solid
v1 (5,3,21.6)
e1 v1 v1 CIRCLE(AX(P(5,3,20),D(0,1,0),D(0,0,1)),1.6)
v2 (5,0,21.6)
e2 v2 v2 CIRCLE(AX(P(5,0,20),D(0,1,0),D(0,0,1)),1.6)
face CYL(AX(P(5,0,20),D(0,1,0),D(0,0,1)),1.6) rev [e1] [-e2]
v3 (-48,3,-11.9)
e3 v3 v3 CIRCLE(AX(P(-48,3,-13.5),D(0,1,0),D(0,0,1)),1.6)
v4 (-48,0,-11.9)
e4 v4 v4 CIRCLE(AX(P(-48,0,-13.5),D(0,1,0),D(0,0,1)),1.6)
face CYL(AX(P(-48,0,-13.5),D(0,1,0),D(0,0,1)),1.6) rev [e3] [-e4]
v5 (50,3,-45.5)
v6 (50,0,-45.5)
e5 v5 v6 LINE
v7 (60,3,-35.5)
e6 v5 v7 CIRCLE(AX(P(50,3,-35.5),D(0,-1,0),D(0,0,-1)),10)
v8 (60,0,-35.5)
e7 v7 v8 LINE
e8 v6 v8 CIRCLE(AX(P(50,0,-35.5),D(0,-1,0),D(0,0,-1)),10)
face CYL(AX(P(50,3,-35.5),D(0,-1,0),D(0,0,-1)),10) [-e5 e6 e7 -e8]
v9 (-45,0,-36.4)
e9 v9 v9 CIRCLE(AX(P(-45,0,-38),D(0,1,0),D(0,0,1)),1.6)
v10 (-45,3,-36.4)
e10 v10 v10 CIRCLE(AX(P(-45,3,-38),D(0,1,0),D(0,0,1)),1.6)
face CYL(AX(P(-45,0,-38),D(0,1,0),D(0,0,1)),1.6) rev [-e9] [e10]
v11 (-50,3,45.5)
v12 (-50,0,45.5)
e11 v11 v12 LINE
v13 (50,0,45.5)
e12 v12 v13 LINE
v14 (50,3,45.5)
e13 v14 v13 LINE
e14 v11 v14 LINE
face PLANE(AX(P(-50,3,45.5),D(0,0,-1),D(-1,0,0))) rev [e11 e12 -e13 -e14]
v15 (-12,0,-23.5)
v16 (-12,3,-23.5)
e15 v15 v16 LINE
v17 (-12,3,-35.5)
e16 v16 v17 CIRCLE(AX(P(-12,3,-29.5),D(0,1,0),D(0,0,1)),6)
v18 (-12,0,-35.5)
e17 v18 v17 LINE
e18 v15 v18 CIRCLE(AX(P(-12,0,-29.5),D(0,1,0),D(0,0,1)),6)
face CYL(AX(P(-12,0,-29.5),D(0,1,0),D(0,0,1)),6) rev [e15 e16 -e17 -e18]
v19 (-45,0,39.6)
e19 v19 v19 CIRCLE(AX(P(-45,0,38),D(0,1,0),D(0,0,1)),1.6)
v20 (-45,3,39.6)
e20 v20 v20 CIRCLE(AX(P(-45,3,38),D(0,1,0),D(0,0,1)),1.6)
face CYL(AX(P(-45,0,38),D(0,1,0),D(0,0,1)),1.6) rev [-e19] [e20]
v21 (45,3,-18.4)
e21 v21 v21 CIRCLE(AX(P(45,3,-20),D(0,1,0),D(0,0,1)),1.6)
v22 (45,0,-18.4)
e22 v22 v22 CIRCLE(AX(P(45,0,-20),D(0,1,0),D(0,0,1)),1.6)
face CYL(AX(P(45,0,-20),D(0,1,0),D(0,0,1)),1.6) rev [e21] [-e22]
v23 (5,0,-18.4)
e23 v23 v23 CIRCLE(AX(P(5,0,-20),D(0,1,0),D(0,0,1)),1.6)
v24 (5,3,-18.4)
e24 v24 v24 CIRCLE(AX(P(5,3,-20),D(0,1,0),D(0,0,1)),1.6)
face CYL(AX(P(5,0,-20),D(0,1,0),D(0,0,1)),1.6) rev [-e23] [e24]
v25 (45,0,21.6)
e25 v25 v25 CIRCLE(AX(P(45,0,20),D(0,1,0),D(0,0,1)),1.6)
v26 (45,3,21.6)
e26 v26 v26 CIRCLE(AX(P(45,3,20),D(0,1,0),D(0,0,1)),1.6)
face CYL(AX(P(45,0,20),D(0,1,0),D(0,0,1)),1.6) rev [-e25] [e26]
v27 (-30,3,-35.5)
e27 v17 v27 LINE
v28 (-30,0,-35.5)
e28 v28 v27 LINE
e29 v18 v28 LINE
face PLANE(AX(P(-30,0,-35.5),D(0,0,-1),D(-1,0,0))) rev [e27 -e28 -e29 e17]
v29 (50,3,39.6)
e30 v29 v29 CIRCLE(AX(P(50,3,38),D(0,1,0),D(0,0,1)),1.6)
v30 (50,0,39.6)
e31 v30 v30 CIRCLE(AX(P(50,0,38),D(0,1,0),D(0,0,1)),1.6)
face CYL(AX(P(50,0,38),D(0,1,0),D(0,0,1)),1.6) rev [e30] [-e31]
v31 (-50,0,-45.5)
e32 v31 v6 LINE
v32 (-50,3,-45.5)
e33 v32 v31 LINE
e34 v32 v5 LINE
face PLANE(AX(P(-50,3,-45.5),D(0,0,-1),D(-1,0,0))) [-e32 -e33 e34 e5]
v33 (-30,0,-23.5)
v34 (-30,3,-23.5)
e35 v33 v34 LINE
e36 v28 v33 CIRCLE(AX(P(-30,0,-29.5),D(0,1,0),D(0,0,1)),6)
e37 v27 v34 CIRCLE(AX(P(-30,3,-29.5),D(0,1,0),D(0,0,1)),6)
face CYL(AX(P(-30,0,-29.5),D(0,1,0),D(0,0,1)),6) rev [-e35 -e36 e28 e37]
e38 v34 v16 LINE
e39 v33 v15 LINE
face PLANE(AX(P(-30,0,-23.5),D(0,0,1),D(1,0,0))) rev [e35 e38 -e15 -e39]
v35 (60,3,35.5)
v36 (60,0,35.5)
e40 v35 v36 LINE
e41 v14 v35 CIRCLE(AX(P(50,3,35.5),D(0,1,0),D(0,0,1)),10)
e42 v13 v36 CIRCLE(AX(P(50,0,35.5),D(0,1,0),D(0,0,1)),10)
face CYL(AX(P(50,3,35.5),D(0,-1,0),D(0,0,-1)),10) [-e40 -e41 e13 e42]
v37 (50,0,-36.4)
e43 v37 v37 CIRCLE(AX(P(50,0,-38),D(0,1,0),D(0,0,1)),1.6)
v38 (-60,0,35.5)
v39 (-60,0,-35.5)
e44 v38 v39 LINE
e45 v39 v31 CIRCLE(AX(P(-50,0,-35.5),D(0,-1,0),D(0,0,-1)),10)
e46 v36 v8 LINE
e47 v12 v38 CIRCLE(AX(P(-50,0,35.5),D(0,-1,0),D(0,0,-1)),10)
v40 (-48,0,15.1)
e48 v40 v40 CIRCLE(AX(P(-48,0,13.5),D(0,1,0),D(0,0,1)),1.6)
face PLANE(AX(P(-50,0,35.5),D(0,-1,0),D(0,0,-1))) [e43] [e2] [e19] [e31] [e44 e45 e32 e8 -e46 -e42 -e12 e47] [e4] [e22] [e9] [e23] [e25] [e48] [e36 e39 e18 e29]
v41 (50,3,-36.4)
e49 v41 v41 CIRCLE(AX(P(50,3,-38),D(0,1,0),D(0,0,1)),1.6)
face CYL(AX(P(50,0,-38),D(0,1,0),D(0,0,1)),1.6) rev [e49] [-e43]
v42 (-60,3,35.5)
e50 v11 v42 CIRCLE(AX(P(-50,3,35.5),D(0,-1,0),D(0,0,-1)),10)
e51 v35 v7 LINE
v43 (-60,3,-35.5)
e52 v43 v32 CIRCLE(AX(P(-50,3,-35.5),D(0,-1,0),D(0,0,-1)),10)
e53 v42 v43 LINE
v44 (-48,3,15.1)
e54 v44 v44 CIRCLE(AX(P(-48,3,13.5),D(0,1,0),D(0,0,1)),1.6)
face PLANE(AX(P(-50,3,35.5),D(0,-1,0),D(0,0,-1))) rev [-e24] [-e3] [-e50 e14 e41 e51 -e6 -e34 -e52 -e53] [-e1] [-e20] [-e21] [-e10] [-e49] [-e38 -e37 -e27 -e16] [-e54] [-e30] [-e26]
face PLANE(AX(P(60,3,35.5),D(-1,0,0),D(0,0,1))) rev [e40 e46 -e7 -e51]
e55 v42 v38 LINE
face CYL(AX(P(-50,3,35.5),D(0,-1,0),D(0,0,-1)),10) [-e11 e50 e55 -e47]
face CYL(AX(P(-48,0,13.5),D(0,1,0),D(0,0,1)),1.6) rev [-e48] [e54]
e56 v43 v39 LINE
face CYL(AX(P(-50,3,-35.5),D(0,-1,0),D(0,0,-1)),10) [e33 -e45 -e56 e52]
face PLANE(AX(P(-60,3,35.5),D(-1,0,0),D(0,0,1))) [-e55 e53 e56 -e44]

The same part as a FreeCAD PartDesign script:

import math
import FreeCAD as App
import Part
import Sketcher
from FreeCAD import Vector

doc = App.newDocument("Part")
params = doc.addObject("Spreadsheet::Sheet", "Params")
for row, (alias, value) in enumerate([
    ("sketch1_radius", "10 mm"),
    ("sketch1_width", "100 mm"),
    ("sketch1_height", "71 mm"),
    ("pad1_length", "3 mm"),
    ("sketch2_diameter", "3.2 mm"),
    ("pocket1_length", "3 mm"),
    ("sketch3_diameter", "3.2 mm"),
    ("pocket2_length", "3 mm"),
    ("sketch4_radius", "6 mm"),
    ("sketch4_width", "18 mm"),
    ("pocket3_length", "3 mm"),
    ("sketch5_diameter", "3.2 mm"),
    ("pocket4_length", "3 mm"),
], start=1):
    params.set(f"A{row}", alias)
    params.set(f"B{row}", "=" + value)
    params.setAlias(f"B{row}", alias)

body = doc.addObject("PartDesign::Body", "Body")

# Sketch on XZ plane
sketch1 = doc.addObject("Sketcher::SketchObject", "Sketch")
body.addObject(sketch1)
sketch1.AttachmentSupport = (doc.XZ_Plane, [""])
sketch1.MapMode = "FlatFace"
sketch1.addGeometry(Part.LineSegment(Vector(-50, 46, 0), Vector(50, 46, 0)), False)
sketch1.addGeometry(Part.ArcOfCircle(Part.Circle(Vector(50, 36, 0), Vector(0, 0, 1), 10), math.radians(0), math.radians(90)), False)
sketch1.addGeometry(Part.LineSegment(Vector(60, 36, 0), Vector(60, -36, 0)), False)
sketch1.addGeometry(Part.ArcOfCircle(Part.Circle(Vector(50, -36, 0), Vector(0, 0, 1), 10), math.radians(-90), math.radians(0)), False)
sketch1.addGeometry(Part.LineSegment(Vector(50, -46, 0), Vector(-50, -46, 0)), False)
sketch1.addGeometry(Part.ArcOfCircle(Part.Circle(Vector(-50, -36, 0), Vector(0, 0, 1), 10), math.radians(180), math.radians(270)), False)
sketch1.addGeometry(Part.LineSegment(Vector(-60, -36, 0), Vector(-60, 36, 0)), False)
sketch1.addGeometry(Part.ArcOfCircle(Part.Circle(Vector(-50, 36, 0), Vector(0, 0, 1), 10), math.radians(90), math.radians(180)), False)
sketch1.addConstraint(Sketcher.Constraint("Tangent", 0, 2, 1, 2))
sketch1.addConstraint(Sketcher.Constraint("Tangent", 1, 1, 2, 1))
sketch1.addConstraint(Sketcher.Constraint("Tangent", 2, 2, 3, 2))
sketch1.addConstraint(Sketcher.Constraint("Tangent", 3, 1, 4, 1))
sketch1.addConstraint(Sketcher.Constraint("Tangent", 4, 2, 5, 2))
sketch1.addConstraint(Sketcher.Constraint("Tangent", 5, 1, 6, 1))
sketch1.addConstraint(Sketcher.Constraint("Tangent", 6, 2, 7, 2))
sketch1.addConstraint(Sketcher.Constraint("Tangent", 7, 1, 0, 1))
sketch1.addConstraint(Sketcher.Constraint("Horizontal", 0))
sketch1.addConstraint(Sketcher.Constraint("Vertical", 2))
sketch1.addConstraint(Sketcher.Constraint("Horizontal", 4))
sketch1.addConstraint(Sketcher.Constraint("Vertical", 6))
sketch1.addConstraint(Sketcher.Constraint("Equal", 1, 3))
sketch1.addConstraint(Sketcher.Constraint("Equal", 3, 5))
sketch1.addConstraint(Sketcher.Constraint("Equal", 5, 7))
sketch1.addConstraint(Sketcher.Constraint("Symmetric", 1, 3, 5, 3, -1, 1))
sketch1.addConstraint(Sketcher.Constraint("Radius", 1, 10.0))
sketch1.addConstraint(Sketcher.Constraint("DistanceX", 0, 1, 0, 2, 100.0))
sketch1.addConstraint(Sketcher.Constraint("DistanceY", 2, 2, 2, 1, 71.0))
sketch1.setExpression("Constraints[16]", "Params.sketch1_radius")
sketch1.setExpression("Constraints[17]", "Params.sketch1_width")
sketch1.setExpression("Constraints[18]", "Params.sketch1_height")
pad1 = doc.addObject("PartDesign::Pad", "Pad")
body.addObject(pad1)
pad1.Profile = sketch1
pad1.setExpression("Length", "Params.pad1_length")
pad1.Reversed = True

# Sketch on XZ plane
sketch2 = doc.addObject("Sketcher::SketchObject", "Sketch001")
body.addObject(sketch2)
sketch2.AttachmentSupport = (doc.XZ_Plane, [""])
sketch2.MapMode = "FlatFace"
sketch2.AttachmentOffset = App.Placement(Vector(0, 0, -3), App.Rotation())
sketch2.addGeometry(Part.Circle(Vector(50, 38, 0), Vector(0, 0, 1), 1.6), False)
sketch2.addGeometry(Part.Circle(Vector(50, -38, 0), Vector(0, 0, 1), 1.6), False)
sketch2.addGeometry(Part.Circle(Vector(-45, -38, 0), Vector(0, 0, 1), 1.6), False)
sketch2.addGeometry(Part.Circle(Vector(-45, 38, 0), Vector(0, 0, 1), 1.6), False)
sketch2.addConstraint(Sketcher.Constraint("Equal", 0, 1))
sketch2.addConstraint(Sketcher.Constraint("Equal", 1, 2))
sketch2.addConstraint(Sketcher.Constraint("Equal", 2, 3))
sketch2.addConstraint(Sketcher.Constraint("Symmetric", 0, 3, 1, 3, -1))
sketch2.addConstraint(Sketcher.Constraint("Symmetric", 2, 3, 3, 3, -1))
sketch2.addConstraint(Sketcher.Constraint("Horizontal", 1, 3, 2, 3))
sketch2.addConstraint(Sketcher.Constraint("Diameter", 0, 3.2))
sketch2.addConstraint(Sketcher.Constraint("DistanceX", -1, 1, 0, 3, 50.0))
sketch2.addConstraint(Sketcher.Constraint("DistanceY", -1, 1, 0, 3, 38.0))
sketch2.addConstraint(Sketcher.Constraint("DistanceX", 2, 3, -1, 1, 45.0))
sketch2.setExpression("Constraints[6]", "Params.sketch2_diameter")
pocket1 = doc.addObject("PartDesign::Pocket", "Pocket")
body.addObject(pocket1)
pocket1.Profile = sketch2
pocket1.setExpression("Length", "Params.pocket1_length")
pocket1.Reversed = True

# Sketch on XZ plane
sketch3 = doc.addObject("Sketcher::SketchObject", "Sketch002")
body.addObject(sketch3)
sketch3.AttachmentSupport = (doc.XZ_Plane, [""])
sketch3.MapMode = "FlatFace"
sketch3.AttachmentOffset = App.Placement(Vector(0, 0, -3), App.Rotation())
sketch3.addGeometry(Part.Circle(Vector(45, -20, 0), Vector(0, 0, 1), 1.6), False)
sketch3.addGeometry(Part.Circle(Vector(45, 20, 0), Vector(0, 0, 1), 1.6), False)
sketch3.addGeometry(Part.Circle(Vector(5, -20, 0), Vector(0, 0, 1), 1.6), False)
sketch3.addGeometry(Part.Circle(Vector(5, 20, 0), Vector(0, 0, 1), 1.6), False)
sketch3.addConstraint(Sketcher.Constraint("Equal", 0, 1))
sketch3.addConstraint(Sketcher.Constraint("Equal", 1, 2))
sketch3.addConstraint(Sketcher.Constraint("Equal", 2, 3))
sketch3.addConstraint(Sketcher.Constraint("Symmetric", 0, 3, 1, 3, -1))
sketch3.addConstraint(Sketcher.Constraint("Symmetric", 2, 3, 3, 3, -1))
sketch3.addConstraint(Sketcher.Constraint("Horizontal", 0, 3, 2, 3))
sketch3.addConstraint(Sketcher.Constraint("Diameter", 0, 3.2))
sketch3.addConstraint(Sketcher.Constraint("DistanceX", -1, 1, 0, 3, 45.0))
sketch3.addConstraint(Sketcher.Constraint("DistanceY", 0, 3, -1, 1, 20.0))
sketch3.addConstraint(Sketcher.Constraint("DistanceX", -1, 1, 2, 3, 5.0))
sketch3.setExpression("Constraints[6]", "Params.sketch3_diameter")
pocket2 = doc.addObject("PartDesign::Pocket", "Pocket001")
body.addObject(pocket2)
pocket2.Profile = sketch3
pocket2.setExpression("Length", "Params.pocket2_length")
pocket2.Reversed = True

# Sketch on XZ plane
sketch4 = doc.addObject("Sketcher::SketchObject", "Sketch003")
body.addObject(sketch4)
sketch4.AttachmentSupport = (doc.XZ_Plane, [""])
sketch4.MapMode = "FlatFace"
sketch4.AttachmentOffset = App.Placement(Vector(0, 0, -3), App.Rotation())
sketch4.addGeometry(Part.LineSegment(Vector(-12, -36, 0), Vector(-30, -36, 0)), False)
sketch4.addGeometry(Part.ArcOfCircle(Part.Circle(Vector(-30, -30, 0), Vector(0, 0, 1), 6), math.radians(90), math.radians(270)), False)
sketch4.addGeometry(Part.LineSegment(Vector(-30, -24, 0), Vector(-12, -24, 0)), False)
sketch4.addGeometry(Part.ArcOfCircle(Part.Circle(Vector(-12, -30, 0), Vector(0, 0, 1), 6), math.radians(-90), math.radians(90)), False)
sketch4.addConstraint(Sketcher.Constraint("Tangent", 0, 2, 1, 2))
sketch4.addConstraint(Sketcher.Constraint("Tangent", 1, 1, 2, 1))
sketch4.addConstraint(Sketcher.Constraint("Tangent", 2, 2, 3, 2))
sketch4.addConstraint(Sketcher.Constraint("Tangent", 3, 1, 0, 1))
sketch4.addConstraint(Sketcher.Constraint("Horizontal", 0))
sketch4.addConstraint(Sketcher.Constraint("Horizontal", 2))
sketch4.addConstraint(Sketcher.Constraint("Radius", 1, 6.0))
sketch4.addConstraint(Sketcher.Constraint("DistanceX", 0, 2, 0, 1, 18.0))
sketch4.addConstraint(Sketcher.Constraint("DistanceX", 1, 3, -1, 1, 30.0))
sketch4.addConstraint(Sketcher.Constraint("DistanceY", 1, 3, -1, 1, 29.5))
sketch4.setExpression("Constraints[6]", "Params.sketch4_radius")
sketch4.setExpression("Constraints[7]", "Params.sketch4_width")
pocket3 = doc.addObject("PartDesign::Pocket", "Pocket002")
body.addObject(pocket3)
pocket3.Profile = sketch4
pocket3.setExpression("Length", "Params.pocket3_length")
pocket3.Reversed = True

# Sketch on XZ plane
sketch5 = doc.addObject("Sketcher::SketchObject", "Sketch004")
body.addObject(sketch5)
sketch5.AttachmentSupport = (doc.XZ_Plane, [""])
sketch5.MapMode = "FlatFace"
sketch5.AttachmentOffset = App.Placement(Vector(0, 0, -3), App.Rotation())
sketch5.addGeometry(Part.Circle(Vector(-48, -13.5, 0), Vector(0, 0, 1), 1.6), False)
sketch5.addGeometry(Part.Circle(Vector(-48, 13.5, 0), Vector(0, 0, 1), 1.6), False)
sketch5.addConstraint(Sketcher.Constraint("Equal", 0, 1))
sketch5.addConstraint(Sketcher.Constraint("Symmetric", 0, 3, 1, 3, -1))
sketch5.addConstraint(Sketcher.Constraint("Diameter", 0, 3.2))
sketch5.addConstraint(Sketcher.Constraint("DistanceX", 0, 3, -1, 1, 48.0))
sketch5.addConstraint(Sketcher.Constraint("DistanceY", 0, 3, 1, 3, 27.0))
sketch5.setExpression("Constraints[2]", "Params.sketch5_diameter")
pocket4 = doc.addObject("PartDesign::Pocket", "Pocket003")
body.addObject(pocket4)
pocket4.Profile = sketch5
pocket4.setExpression("Length", "Params.pocket4_length")
pocket4.Reversed = True

doc.recompute()
